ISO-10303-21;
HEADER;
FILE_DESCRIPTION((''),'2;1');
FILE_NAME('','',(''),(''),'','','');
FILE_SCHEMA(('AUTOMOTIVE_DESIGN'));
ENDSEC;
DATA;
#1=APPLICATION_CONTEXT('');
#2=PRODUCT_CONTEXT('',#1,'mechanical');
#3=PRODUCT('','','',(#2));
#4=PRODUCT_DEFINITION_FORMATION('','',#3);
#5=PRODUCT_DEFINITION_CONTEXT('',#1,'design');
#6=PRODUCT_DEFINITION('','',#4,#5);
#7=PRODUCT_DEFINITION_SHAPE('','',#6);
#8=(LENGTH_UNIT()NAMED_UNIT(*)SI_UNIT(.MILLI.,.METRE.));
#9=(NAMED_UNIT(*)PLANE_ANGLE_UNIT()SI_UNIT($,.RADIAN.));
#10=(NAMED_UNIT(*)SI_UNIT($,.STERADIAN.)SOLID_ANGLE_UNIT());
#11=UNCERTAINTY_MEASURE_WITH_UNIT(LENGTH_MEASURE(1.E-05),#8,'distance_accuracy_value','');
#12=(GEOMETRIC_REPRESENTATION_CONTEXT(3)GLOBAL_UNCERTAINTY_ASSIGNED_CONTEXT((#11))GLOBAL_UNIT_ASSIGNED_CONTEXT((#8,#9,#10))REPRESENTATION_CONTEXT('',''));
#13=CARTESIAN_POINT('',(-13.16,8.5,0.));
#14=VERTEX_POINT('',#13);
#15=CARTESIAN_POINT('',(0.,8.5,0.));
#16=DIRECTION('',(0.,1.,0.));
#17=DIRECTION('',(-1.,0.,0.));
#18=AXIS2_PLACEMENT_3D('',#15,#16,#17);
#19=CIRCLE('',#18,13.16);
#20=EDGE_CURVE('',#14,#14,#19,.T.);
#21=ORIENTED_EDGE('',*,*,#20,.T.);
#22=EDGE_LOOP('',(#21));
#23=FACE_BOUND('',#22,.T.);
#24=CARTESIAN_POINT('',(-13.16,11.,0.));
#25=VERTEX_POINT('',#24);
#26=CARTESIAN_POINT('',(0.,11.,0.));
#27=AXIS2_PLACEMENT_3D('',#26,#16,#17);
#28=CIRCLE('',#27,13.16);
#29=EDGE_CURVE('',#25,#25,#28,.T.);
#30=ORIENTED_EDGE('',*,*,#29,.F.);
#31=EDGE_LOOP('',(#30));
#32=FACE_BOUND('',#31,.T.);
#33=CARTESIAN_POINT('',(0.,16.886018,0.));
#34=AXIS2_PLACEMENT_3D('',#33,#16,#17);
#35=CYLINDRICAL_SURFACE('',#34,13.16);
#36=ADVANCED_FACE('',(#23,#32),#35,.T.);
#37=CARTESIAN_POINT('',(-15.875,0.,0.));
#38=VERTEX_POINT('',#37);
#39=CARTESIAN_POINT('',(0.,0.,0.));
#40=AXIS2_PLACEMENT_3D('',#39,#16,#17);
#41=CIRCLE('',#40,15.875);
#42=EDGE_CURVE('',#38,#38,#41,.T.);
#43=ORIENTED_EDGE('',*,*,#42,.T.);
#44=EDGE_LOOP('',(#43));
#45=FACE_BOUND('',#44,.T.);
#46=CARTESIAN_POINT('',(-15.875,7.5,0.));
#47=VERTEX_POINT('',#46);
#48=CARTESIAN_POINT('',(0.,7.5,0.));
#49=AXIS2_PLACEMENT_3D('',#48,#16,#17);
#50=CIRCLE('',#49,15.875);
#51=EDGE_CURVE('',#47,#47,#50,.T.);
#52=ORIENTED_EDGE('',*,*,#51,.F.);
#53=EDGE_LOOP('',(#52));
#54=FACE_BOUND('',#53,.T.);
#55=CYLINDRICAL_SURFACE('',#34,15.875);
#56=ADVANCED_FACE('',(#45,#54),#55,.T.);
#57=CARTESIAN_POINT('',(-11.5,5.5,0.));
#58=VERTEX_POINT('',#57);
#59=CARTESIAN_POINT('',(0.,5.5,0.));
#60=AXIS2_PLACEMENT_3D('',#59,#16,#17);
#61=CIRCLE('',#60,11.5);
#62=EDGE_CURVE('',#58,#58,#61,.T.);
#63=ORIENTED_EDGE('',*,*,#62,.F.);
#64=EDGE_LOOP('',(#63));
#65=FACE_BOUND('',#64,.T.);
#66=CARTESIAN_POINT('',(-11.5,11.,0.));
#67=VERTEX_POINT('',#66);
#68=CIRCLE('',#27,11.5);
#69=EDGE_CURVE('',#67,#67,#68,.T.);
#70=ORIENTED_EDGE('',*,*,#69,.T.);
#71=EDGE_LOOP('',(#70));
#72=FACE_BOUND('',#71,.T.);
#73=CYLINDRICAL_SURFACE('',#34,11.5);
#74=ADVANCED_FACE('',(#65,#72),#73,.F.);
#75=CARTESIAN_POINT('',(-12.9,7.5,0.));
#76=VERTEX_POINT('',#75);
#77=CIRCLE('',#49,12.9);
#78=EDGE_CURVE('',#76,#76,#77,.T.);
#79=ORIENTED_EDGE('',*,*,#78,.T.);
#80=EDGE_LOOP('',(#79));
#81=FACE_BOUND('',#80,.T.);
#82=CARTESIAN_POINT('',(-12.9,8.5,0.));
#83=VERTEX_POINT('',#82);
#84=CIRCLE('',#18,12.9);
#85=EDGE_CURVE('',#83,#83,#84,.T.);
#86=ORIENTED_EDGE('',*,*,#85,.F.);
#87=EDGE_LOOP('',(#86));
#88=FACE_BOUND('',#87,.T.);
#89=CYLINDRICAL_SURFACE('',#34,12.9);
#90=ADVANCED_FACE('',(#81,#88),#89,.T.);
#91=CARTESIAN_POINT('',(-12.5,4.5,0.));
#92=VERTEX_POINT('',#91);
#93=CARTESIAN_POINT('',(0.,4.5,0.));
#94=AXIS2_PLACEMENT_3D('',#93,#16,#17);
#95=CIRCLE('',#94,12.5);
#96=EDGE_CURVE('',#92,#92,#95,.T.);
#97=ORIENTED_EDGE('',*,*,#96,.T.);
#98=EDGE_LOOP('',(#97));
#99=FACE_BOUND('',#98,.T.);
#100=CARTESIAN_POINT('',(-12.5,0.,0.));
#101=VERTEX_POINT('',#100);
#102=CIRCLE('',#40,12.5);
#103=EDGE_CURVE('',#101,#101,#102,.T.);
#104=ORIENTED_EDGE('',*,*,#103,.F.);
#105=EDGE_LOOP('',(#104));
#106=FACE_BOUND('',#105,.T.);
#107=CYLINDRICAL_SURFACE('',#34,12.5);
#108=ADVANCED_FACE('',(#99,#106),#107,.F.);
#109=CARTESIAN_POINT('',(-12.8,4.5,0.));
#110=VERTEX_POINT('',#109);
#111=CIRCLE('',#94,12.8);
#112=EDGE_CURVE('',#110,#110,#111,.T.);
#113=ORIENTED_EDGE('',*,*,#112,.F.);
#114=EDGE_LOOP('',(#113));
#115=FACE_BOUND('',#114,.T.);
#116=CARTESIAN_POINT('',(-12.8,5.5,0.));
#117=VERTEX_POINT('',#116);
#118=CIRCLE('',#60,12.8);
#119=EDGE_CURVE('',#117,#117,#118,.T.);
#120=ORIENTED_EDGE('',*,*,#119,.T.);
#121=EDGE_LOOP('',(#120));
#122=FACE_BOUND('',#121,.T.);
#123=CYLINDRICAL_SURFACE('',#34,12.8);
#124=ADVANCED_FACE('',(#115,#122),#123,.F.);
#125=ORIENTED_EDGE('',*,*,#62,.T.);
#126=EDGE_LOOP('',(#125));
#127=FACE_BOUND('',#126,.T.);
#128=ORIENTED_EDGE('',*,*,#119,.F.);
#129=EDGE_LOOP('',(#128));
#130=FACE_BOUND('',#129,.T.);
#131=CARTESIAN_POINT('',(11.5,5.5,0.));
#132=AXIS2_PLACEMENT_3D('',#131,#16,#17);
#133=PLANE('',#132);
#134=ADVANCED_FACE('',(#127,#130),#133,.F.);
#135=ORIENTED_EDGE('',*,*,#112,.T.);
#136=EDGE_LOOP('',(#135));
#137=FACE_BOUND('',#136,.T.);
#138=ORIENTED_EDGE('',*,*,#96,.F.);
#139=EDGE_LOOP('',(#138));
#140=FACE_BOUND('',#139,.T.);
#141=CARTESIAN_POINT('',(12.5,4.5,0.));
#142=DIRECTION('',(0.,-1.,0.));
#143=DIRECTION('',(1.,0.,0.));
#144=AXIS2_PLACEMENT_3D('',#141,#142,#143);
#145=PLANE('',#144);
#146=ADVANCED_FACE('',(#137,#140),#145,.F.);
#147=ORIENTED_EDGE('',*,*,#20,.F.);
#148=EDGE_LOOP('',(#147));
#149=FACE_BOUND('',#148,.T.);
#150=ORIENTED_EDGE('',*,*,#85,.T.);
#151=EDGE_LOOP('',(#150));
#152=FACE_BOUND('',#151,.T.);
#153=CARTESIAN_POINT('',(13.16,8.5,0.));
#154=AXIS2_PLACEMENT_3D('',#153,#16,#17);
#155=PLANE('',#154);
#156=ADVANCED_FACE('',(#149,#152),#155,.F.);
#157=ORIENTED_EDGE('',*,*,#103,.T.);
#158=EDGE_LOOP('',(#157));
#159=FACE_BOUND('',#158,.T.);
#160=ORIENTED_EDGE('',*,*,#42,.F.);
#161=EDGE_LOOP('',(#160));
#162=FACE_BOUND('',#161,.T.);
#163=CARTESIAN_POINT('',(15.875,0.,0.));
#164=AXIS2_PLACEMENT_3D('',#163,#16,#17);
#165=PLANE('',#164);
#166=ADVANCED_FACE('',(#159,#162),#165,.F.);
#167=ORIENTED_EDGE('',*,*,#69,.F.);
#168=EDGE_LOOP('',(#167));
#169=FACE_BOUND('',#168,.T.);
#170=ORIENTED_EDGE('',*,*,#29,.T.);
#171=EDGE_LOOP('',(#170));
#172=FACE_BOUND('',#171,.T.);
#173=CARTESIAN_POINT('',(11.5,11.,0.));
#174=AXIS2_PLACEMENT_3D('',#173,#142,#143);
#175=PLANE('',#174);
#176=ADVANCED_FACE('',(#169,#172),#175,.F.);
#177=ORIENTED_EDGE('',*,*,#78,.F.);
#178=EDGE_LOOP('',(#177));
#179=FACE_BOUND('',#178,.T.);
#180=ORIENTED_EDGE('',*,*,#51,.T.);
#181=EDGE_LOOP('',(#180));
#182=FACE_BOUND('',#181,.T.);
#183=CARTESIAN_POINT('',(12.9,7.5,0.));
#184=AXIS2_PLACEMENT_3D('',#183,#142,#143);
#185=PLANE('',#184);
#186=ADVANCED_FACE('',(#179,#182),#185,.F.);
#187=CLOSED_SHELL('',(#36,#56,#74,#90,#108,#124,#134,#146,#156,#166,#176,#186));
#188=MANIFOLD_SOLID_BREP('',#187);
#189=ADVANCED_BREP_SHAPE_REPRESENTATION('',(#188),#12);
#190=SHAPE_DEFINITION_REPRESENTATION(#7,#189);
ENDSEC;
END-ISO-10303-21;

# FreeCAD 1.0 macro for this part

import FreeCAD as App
import Part
import Sketcher
from FreeCAD import Vector
Q = App.Units.Quantity

doc = App.newDocument("Part")
body = doc.addObject("PartDesign::Body", "Body")

# Sketch on XY plane
sketch1 = doc.addObject("Sketcher::SketchObject", "Sketch")
body.addObject(sketch1)
sketch1.AttachmentSupport = (doc.XY_Plane, [""])
sketch1.MapMode = "FlatFace"
sketch1.addGeometry([
    Part.LineSegment(Vector(12.5, 4.5, 0), Vector(12.5, 0, 0)),  # 0
    Part.LineSegment(Vector(12.5, 0, 0), Vector(15.88, 0, 0)),  # 1
    Part.LineSegment(Vector(15.88, 0, 0), Vector(15.88, 7.5, 0)),  # 2
    Part.LineSegment(Vector(15.88, 7.5, 0), Vector(12.9, 7.5, 0)),  # 3
    Part.LineSegment(Vector(12.9, 7.5, 0), Vector(12.9, 8.5, 0)),  # 4
    Part.LineSegment(Vector(12.9, 8.5, 0), Vector(13.16, 8.5, 0)),  # 5
    Part.LineSegment(Vector(13.16, 8.5, 0), Vector(13.16, 11, 0)),  # 6
    Part.LineSegment(Vector(13.16, 11, 0), Vector(11.5, 11, 0)),  # 7
    Part.LineSegment(Vector(11.5, 11, 0), Vector(11.5, 5.5, 0)),  # 8
    Part.LineSegment(Vector(11.5, 5.5, 0), Vector(12.8, 5.5, 0)),  # 9
    Part.LineSegment(Vector(12.8, 5.5, 0), Vector(12.8, 4.5, 0)),  # 10
    Part.LineSegment(Vector(12.8, 4.5, 0), Vector(12.5, 4.5, 0)),  # 11
], False)
sketch1.addConstraint([
    Sketcher.Constraint("Coincident", 0, 2, 1, 1),
    Sketcher.Constraint("Coincident", 1, 2, 2, 1),
    Sketcher.Constraint("Coincident", 2, 2, 3, 1),
    Sketcher.Constraint("Coincident", 3, 2, 4, 1),
    Sketcher.Constraint("Coincident", 4, 2, 5, 1),
    Sketcher.Constraint("Coincident", 5, 2, 6, 1),
    Sketcher.Constraint("Coincident", 6, 2, 7, 1),
    Sketcher.Constraint("Coincident", 7, 2, 8, 1),
    Sketcher.Constraint("Coincident", 8, 2, 9, 1),
    Sketcher.Constraint("Coincident", 9, 2, 10, 1),
    Sketcher.Constraint("Coincident", 10, 2, 11, 1),
    Sketcher.Constraint("Coincident", 11, 2, 0, 1),
    Sketcher.Constraint("Vertical", 0),
    Sketcher.Constraint("Horizontal", 1),
    Sketcher.Constraint("Vertical", 2),
    Sketcher.Constraint("Horizontal", 3),
    Sketcher.Constraint("Vertical", 4),
    Sketcher.Constraint("Horizontal", 5),
    Sketcher.Constraint("Vertical", 6),
    Sketcher.Constraint("Horizontal", 7),
    Sketcher.Constraint("Vertical", 8),
    Sketcher.Constraint("Horizontal", 9),
    Sketcher.Constraint("Vertical", 10),
    Sketcher.Constraint("Horizontal", 11),
    Sketcher.Constraint("PointOnObject", 0, 2, -1),
    Sketcher.Constraint("Equal", 4, 10),
    Sketcher.Constraint("DistanceY", 4, 1, 4, 2, Q("1 mm")),
    Sketcher.Constraint("DistanceX", 9, 1, 9, 2, Q("1.3 mm")),
    Sketcher.Constraint("DistanceX", 11, 2, 11, 1, Q("0.3 mm")),
    Sketcher.Constraint("DistanceY", 0, 2, 0, 1, Q("4.5 mm")),
    Sketcher.Constraint("DistanceY", 2, 1, 2, 2, Q("7.5 mm")),
    Sketcher.Constraint("DistanceY", 6, 1, 6, 2, Q("2.5 mm")),
    Sketcher.Constraint("DistanceX", 5, 1, 5, 2, Q("0.26 mm")),
    Sketcher.Constraint("DistanceX", 7, 2, 7, 1, Q("1.66 mm")),
    Sketcher.Constraint("DistanceX", -1, 1, 0, 2, Q("12.5 mm")),
    Sketcher.Constraint("DistanceX", 1, 1, 1, 2, Q("3.375 mm")),
])
revolution = doc.addObject("PartDesign::Revolution", "Revolution")
body.addObject(revolution)
revolution.Profile = sketch1
revolution.ReferenceAxis = (sketch1, ["V_Axis"])
revolution.Angle = 360

doc.recompute()
